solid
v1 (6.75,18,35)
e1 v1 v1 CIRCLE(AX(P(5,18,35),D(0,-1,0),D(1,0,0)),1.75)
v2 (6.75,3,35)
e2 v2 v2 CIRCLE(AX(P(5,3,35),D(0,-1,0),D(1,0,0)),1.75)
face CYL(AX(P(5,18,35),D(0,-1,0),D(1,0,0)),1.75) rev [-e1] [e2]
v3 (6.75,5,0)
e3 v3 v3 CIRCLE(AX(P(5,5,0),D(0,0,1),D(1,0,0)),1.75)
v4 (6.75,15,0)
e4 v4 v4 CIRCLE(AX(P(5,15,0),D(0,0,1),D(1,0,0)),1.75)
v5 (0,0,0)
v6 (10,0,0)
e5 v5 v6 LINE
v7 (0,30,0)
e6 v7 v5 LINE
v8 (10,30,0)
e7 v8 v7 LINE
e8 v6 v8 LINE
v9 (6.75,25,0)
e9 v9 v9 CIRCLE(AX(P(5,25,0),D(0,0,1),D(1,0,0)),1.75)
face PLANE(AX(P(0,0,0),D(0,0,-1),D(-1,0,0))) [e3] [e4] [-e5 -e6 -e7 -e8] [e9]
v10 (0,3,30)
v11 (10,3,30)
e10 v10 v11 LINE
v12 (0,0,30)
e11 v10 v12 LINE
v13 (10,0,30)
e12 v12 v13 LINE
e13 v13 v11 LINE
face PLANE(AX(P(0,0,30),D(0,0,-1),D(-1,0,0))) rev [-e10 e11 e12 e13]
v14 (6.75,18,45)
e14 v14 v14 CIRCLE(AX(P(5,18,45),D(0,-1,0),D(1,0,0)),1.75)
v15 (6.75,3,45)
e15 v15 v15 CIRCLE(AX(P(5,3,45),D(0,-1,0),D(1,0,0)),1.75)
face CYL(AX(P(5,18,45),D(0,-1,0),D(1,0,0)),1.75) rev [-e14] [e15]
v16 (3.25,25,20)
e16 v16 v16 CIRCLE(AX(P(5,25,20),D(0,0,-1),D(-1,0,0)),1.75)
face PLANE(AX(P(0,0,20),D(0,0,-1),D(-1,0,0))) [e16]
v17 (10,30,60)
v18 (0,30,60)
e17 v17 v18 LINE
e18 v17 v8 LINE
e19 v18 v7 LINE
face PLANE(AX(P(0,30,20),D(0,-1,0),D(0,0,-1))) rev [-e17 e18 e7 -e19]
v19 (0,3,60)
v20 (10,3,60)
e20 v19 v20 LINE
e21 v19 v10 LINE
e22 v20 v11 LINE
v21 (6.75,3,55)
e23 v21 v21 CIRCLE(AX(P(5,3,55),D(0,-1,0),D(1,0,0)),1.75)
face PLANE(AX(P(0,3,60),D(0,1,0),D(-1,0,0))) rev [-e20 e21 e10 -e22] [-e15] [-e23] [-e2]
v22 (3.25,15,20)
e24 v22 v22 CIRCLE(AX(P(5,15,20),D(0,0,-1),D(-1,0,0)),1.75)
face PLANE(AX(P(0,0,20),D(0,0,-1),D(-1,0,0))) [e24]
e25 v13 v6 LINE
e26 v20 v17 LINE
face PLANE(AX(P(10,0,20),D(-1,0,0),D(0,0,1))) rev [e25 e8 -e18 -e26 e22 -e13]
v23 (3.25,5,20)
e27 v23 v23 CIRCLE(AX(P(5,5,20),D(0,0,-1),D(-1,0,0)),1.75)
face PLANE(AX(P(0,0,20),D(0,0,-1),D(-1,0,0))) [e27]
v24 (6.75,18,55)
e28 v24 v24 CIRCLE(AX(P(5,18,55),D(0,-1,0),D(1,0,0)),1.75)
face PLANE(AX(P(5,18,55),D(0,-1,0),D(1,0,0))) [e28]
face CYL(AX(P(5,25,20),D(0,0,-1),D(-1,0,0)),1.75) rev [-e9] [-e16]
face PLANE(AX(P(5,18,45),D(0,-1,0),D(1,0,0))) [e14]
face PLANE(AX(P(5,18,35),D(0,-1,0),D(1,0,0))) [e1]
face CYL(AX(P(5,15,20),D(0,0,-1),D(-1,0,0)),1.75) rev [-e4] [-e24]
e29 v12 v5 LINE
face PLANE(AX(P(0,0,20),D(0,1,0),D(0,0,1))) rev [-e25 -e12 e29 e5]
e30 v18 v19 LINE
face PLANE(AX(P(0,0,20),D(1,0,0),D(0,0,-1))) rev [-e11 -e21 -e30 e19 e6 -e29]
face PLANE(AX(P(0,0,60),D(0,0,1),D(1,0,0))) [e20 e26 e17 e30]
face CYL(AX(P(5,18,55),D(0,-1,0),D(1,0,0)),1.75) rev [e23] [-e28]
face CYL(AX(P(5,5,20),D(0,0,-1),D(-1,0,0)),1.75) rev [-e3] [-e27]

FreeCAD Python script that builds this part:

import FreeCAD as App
import Part
import Sketcher
Q = App.Units.Quantity


def add_polygon(sketch, points):
    """Adds a closed chain of lines whose ends are joined by coincident constraints."""
    first, n = sketch.GeometryCount, len(points)
    for a, b in zip(points, points[1:] + points[:1]):
        sketch.addGeometry(Part.LineSegment(App.Vector(*a, 0), App.Vector(*b, 0)), False)
    for i in range(n):
        sketch.addConstraint(Sketcher.Constraint("Coincident", first + i, 2, first + (i + 1) % n, 1))

doc = App.newDocument("Part")
body = doc.addObject("PartDesign::Body", "Body")

sketch1 = body.newObject("Sketcher::SketchObject", "Sketch")
sketch1.AttachmentSupport = (doc.getObject("XY_Plane"), [""])
sketch1.MapMode = "FlatFace"
add_polygon(sketch1, [(0, 30), (0, 0), (10, 0), (10, 30)])
sketch1.addGeometry(Part.Circle(App.Vector(5, 5, 0), App.Vector(0, 0, 1), 1.8), False)
sketch1.addGeometry(Part.Circle(App.Vector(5, 15, 0), App.Vector(0, 0, 1), 1.8), False)
sketch1.addGeometry(Part.Circle(App.Vector(5, 25, 0), App.Vector(0, 0, 1), 1.8), False)
sketch1.addConstraint([
    Sketcher.Constraint("Vertical", 0),
    Sketcher.Constraint("Horizontal", 1),
    Sketcher.Constraint("Vertical", 2),
    Sketcher.Constraint("Horizontal", 3),
    Sketcher.Constraint("Coincident", 0, 2, -1, 1),
    Sketcher.Constraint("Equal", 4, 5),
    Sketcher.Constraint("Equal", 5, 6),
    Sketcher.Constraint("Vertical", 4, 3, 5, 3),
    Sketcher.Constraint("Vertical", 5, 3, 6, 3),
    Sketcher.Constraint("Diameter", 4, Q("3.5 mm")),
    Sketcher.Constraint("DistanceX", 1, 1, 1, 2, Q("10 mm")),
    Sketcher.Constraint("DistanceY", 0, 2, 0, 1, Q("30 mm")),
    Sketcher.Constraint("DistanceX", -1, 1, 4, 3, Q("5 mm")),
    Sketcher.Constraint("DistanceY", -1, 1, 4, 3, Q("5 mm")),
    Sketcher.Constraint("DistanceY", -1, 1, 5, 3, Q("15 mm")),
    Sketcher.Constraint("DistanceY", -1, 1, 6, 3, Q("25 mm")),
])
pad1 = body.newObject("PartDesign::Pad", "Pad")
pad1.Profile = sketch1
pad1.Length = 20

sketch2 = body.newObject("Sketcher::SketchObject", "Sketch001")
sketch2.AttachmentSupport = (doc.getObject("XY_Plane"), [""])
sketch2.MapMode = "FlatFace"
sketch2.AttachmentOffset = App.Placement(App.Vector(0, 0, 20), App.Rotation())
add_polygon(sketch2, [(0, 30), (0, 0), (10, 0), (10, 30)])
sketch2.addConstraint([
    Sketcher.Constraint("Vertical", 0),
    Sketcher.Constraint("Horizontal", 1),
    Sketcher.Constraint("Vertical", 2),
    Sketcher.Constraint("Horizontal", 3),
    Sketcher.Constraint("Coincident", 0, 2, -1, 1),
    Sketcher.Constraint("DistanceX", 1, 1, 1, 2, Q("10 mm")),
    Sketcher.Constraint("DistanceY", 0, 2, 0, 1, Q("30 mm")),
])
pad2 = body.newObject("PartDesign::Pad", "Pad001")
pad2.Profile = sketch2
pad2.Length = 10

sketch3 = body.newObject("Sketcher::SketchObject", "Sketch002")
sketch3.AttachmentSupport = (doc.getObject("XY_Plane"), [""])
sketch3.MapMode = "FlatFace"
sketch3.AttachmentOffset = App.Placement(App.Vector(0, 0, 30), App.Rotation())
add_polygon(sketch3, [(0, 30), (0, 3), (10, 3), (10, 30)])
sketch3.addConstraint([
    Sketcher.Constraint("Vertical", 0),
    Sketcher.Constraint("Horizontal", 1),
    Sketcher.Constraint("Vertical", 2),
    Sketcher.Constraint("Horizontal", 3),
    Sketcher.Constraint("PointOnObject", 0, 2, -2),
    Sketcher.Constraint("DistanceX", 1, 1, 1, 2, Q("10 mm")),
    Sketcher.Constraint("DistanceY", 0, 2, 0, 1, Q("27 mm")),
    Sketcher.Constraint("DistanceY", -1, 1, 0, 2, Q("3 mm")),
])
pad3 = body.newObject("PartDesign::Pad", "Pad002")
pad3.Profile = sketch3
pad3.Length = 30

sketch4 = body.newObject("Sketcher::SketchObject", "Sketch003")
sketch4.AttachmentSupport = (doc.getObject("XZ_Plane"), [""])
sketch4.MapMode = "FlatFace"
sketch4.AttachmentOffset = App.Placement(App.Vector(0, 0, -3), App.Rotation())
sketch4.addGeometry([
    Part.Circle(App.Vector(5, 55, 0), App.Vector(0, 0, 1), 1.8),
    Part.Circle(App.Vector(5, 45, 0), App.Vector(0, 0, 1), 1.8),
    Part.Circle(App.Vector(5, 35, 0), App.Vector(0, 0, 1), 1.8),
], False)
sketch4.addConstraint([
    Sketcher.Constraint("Equal", 0, 1),
    Sketcher.Constraint("Equal", 1, 2),
    Sketcher.Constraint("Vertical", 0, 3, 1, 3),
    Sketcher.Constraint("Vertical", 1, 3, 2, 3),
    Sketcher.Constraint("Diameter", 0, Q("3.5 mm")),
    Sketcher.Constraint("DistanceX", -1, 1, 0, 3, Q("5 mm")),
    Sketcher.Constraint("DistanceY", -1, 1, 0, 3, Q("55 mm")),
    Sketcher.Constraint("DistanceY", -1, 1, 1, 3, Q("45 mm")),
    Sketcher.Constraint("DistanceY", -1, 1, 2, 3, Q("35 mm")),
])
pocket1 = body.newObject("PartDesign::Pocket", "Pocket")
pocket1.Profile = sketch4
pocket1.Length = 15

doc.recompute()
